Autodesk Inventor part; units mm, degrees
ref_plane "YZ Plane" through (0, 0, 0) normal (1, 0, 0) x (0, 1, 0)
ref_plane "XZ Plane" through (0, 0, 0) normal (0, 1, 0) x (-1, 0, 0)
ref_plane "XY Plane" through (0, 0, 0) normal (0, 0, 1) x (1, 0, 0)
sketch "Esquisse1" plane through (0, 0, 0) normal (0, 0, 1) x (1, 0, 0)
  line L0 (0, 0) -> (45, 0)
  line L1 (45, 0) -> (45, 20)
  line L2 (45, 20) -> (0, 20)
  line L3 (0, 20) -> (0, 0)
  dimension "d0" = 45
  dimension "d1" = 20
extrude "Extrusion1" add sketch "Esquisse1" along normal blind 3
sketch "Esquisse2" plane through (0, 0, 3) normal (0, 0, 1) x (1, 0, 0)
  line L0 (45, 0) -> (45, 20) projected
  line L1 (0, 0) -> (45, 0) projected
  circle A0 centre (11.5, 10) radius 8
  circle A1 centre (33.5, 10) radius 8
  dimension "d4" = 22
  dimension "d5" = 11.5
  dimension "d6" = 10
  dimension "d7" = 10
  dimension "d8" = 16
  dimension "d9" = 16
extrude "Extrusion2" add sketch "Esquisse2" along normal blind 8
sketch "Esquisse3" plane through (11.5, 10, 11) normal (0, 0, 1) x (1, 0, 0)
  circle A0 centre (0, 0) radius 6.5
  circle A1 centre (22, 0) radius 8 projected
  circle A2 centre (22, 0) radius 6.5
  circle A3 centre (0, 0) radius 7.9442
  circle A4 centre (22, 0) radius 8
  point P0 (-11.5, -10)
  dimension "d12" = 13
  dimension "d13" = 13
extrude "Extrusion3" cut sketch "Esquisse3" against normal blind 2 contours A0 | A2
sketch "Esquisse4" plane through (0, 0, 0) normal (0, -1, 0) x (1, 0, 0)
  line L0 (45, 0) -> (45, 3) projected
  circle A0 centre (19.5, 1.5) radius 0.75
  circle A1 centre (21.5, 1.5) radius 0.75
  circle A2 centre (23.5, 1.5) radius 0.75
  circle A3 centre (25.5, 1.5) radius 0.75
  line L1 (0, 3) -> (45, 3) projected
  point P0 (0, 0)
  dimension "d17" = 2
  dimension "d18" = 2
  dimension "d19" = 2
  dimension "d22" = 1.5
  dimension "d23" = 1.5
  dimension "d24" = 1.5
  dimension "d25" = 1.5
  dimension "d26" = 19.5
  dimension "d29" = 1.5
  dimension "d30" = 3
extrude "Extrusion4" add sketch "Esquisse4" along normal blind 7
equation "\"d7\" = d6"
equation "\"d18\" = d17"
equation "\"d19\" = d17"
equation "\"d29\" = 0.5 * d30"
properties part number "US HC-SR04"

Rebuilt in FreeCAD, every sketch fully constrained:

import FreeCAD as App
import Part
import Sketcher
from FreeCAD import Vector
Q = App.Units.Quantity

doc = App.newDocument("Part")
body = doc.addObject("PartDesign::Body", "Body")

# Sketch on XY plane
sketch1 = body.newObject("Sketcher::SketchObject", "Sketch")
sketch1.AttachmentSupport = (doc.getObject("XY_Plane"), [""])
sketch1.MapMode = "FlatFace"
sketch1.addGeometry([
    Part.LineSegment(Vector(0, 20, 0), Vector(0, 0, 0)),
    Part.LineSegment(Vector(0, 0, 0), Vector(45, 0, 0)),
    Part.LineSegment(Vector(45, 0, 0), Vector(45, 20, 0)),
    Part.LineSegment(Vector(45, 20, 0), Vector(0, 20, 0)),
], False)
sketch1.addConstraint([
    Sketcher.Constraint("Coincident", 0, 2, 1, 1),
    Sketcher.Constraint("Coincident", 1, 2, 2, 1),
    Sketcher.Constraint("Coincident", 2, 2, 3, 1),
    Sketcher.Constraint("Coincident", 3, 2, 0, 1),
    Sketcher.Constraint("Vertical", 0),
    Sketcher.Constraint("Horizontal", 1),
    Sketcher.Constraint("Vertical", 2),
    Sketcher.Constraint("Horizontal", 3),
    Sketcher.Constraint("Coincident", 0, 2, -1, 1),
    Sketcher.Constraint("DistanceX", 1, 1, 1, 2, Q("45 mm")),
    Sketcher.Constraint("DistanceY", 0, 2, 0, 1, Q("20 mm")),
])
pad1 = body.newObject("PartDesign::Pad", "Pad")
pad1.Profile = sketch1
pad1.Length = 3

# Sketch on XY plane
sketch2 = body.newObject("Sketcher::SketchObject", "Sketch001")
sketch2.AttachmentSupport = (doc.getObject("XY_Plane"), [""])
sketch2.MapMode = "FlatFace"
sketch2.AttachmentOffset = App.Placement(Vector(0, 0, 3), App.Rotation())
sketch2.addGeometry([
    Part.Circle(Vector(12, 10, 0), Vector(0, 0, 1), 8),
    Part.Circle(Vector(34, 10, 0), Vector(0, 0, 1), 8),
], False)
sketch2.addConstraint([
    Sketcher.Constraint("Equal", 0, 1),
    Sketcher.Constraint("Horizontal", 0, 3, 1, 3),
    Sketcher.Constraint("Diameter", 0, Q("16 mm")),
    Sketcher.Constraint("DistanceY", -1, 1, 0, 3, Q("10 mm")),
    Sketcher.Constraint("DistanceX", 0, 3, 1, 3, Q("22 mm")),
    Sketcher.Constraint("DistanceX", -1, 1, 0, 3, Q("11.5 mm")),
])
pad2 = body.newObject("PartDesign::Pad", "Pad001")
pad2.Profile = sketch2
pad2.Length = 8

# Sketch on XY plane
sketch3 = body.newObject("Sketcher::SketchObject", "Sketch002")
sketch3.AttachmentSupport = (doc.getObject("XY_Plane"), [""])
sketch3.MapMode = "FlatFace"
sketch3.AttachmentOffset = App.Placement(Vector(0, 0, 11), App.Rotation())
sketch3.addGeometry([
    Part.Circle(Vector(12, 10, 0), Vector(0, 0, 1), 6),
    Part.Circle(Vector(34, 10, 0), Vector(0, 0, 1), 6),
], False)
sketch3.addConstraint([
    Sketcher.Constraint("Equal", 0, 1),
    Sketcher.Constraint("Horizontal", 0, 3, 1, 3),
    Sketcher.Constraint("Diameter", 0, Q("13 mm")),
    Sketcher.Constraint("DistanceY", -1, 1, 0, 3, Q("10 mm")),
    Sketcher.Constraint("DistanceX", 0, 3, 1, 3, Q("22 mm")),
    Sketcher.Constraint("DistanceX", -1, 1, 0, 3, Q("11.5 mm")),
])
pocket1 = body.newObject("PartDesign::Pocket", "Pocket")
pocket1.Profile = sketch3
pocket1.Length = 2

# Sketch on XZ plane
sketch4 = body.newObject("Sketcher::SketchObject", "Sketch003")
sketch4.AttachmentSupport = (doc.getObject("XZ_Plane"), [""])
sketch4.MapMode = "FlatFace"
sketch4.addGeometry([
    Part.Circle(Vector(19.5, 1.5, 0), Vector(0, 0, 1), 0.8),
    Part.Circle(Vector(21.5, 1.5, 0), Vector(0, 0, 1), 0.8),
    Part.Circle(Vector(23.5, 1.5, 0), Vector(0, 0, 1), 0.8),
    Part.Circle(Vector(25.5, 1.5, 0), Vector(0, 0, 1), 0.8),
], False)
sketch4.addConstraint([
    Sketcher.Constraint("Equal", 0, 1),
    Sketcher.Constraint("Equal", 1, 2),
    Sketcher.Constraint("Equal", 2, 3),
    Sketcher.Constraint("Horizontal", 0, 3, 1, 3),
    Sketcher.Constraint("Horizontal", 1, 3, 2, 3),
    Sketcher.Constraint("Horizontal", 2, 3, 3, 3),
    Sketcher.Constraint("Diameter", 0, Q("1.5 mm")),
    Sketcher.Constraint("DistanceX", 0, 3, 1, 3, Q("2 mm")),
    Sketcher.Constraint("DistanceX", 1, 3, 2, 3, Q("2 mm")),
    Sketcher.Constraint("DistanceX", 2, 3, 3, 3, Q("2 mm")),
    Sketcher.Constraint("DistanceX", -1, 1, 0, 3, Q("19.5 mm")),
    Sketcher.Constraint("DistanceY", -1, 1, 0, 3, Q("1.5 mm")),
])
pad3 = body.newObject("PartDesign::Pad", "Pad002")
pad3.Profile = sketch4
pad3.Length = 7

doc.recompute()
